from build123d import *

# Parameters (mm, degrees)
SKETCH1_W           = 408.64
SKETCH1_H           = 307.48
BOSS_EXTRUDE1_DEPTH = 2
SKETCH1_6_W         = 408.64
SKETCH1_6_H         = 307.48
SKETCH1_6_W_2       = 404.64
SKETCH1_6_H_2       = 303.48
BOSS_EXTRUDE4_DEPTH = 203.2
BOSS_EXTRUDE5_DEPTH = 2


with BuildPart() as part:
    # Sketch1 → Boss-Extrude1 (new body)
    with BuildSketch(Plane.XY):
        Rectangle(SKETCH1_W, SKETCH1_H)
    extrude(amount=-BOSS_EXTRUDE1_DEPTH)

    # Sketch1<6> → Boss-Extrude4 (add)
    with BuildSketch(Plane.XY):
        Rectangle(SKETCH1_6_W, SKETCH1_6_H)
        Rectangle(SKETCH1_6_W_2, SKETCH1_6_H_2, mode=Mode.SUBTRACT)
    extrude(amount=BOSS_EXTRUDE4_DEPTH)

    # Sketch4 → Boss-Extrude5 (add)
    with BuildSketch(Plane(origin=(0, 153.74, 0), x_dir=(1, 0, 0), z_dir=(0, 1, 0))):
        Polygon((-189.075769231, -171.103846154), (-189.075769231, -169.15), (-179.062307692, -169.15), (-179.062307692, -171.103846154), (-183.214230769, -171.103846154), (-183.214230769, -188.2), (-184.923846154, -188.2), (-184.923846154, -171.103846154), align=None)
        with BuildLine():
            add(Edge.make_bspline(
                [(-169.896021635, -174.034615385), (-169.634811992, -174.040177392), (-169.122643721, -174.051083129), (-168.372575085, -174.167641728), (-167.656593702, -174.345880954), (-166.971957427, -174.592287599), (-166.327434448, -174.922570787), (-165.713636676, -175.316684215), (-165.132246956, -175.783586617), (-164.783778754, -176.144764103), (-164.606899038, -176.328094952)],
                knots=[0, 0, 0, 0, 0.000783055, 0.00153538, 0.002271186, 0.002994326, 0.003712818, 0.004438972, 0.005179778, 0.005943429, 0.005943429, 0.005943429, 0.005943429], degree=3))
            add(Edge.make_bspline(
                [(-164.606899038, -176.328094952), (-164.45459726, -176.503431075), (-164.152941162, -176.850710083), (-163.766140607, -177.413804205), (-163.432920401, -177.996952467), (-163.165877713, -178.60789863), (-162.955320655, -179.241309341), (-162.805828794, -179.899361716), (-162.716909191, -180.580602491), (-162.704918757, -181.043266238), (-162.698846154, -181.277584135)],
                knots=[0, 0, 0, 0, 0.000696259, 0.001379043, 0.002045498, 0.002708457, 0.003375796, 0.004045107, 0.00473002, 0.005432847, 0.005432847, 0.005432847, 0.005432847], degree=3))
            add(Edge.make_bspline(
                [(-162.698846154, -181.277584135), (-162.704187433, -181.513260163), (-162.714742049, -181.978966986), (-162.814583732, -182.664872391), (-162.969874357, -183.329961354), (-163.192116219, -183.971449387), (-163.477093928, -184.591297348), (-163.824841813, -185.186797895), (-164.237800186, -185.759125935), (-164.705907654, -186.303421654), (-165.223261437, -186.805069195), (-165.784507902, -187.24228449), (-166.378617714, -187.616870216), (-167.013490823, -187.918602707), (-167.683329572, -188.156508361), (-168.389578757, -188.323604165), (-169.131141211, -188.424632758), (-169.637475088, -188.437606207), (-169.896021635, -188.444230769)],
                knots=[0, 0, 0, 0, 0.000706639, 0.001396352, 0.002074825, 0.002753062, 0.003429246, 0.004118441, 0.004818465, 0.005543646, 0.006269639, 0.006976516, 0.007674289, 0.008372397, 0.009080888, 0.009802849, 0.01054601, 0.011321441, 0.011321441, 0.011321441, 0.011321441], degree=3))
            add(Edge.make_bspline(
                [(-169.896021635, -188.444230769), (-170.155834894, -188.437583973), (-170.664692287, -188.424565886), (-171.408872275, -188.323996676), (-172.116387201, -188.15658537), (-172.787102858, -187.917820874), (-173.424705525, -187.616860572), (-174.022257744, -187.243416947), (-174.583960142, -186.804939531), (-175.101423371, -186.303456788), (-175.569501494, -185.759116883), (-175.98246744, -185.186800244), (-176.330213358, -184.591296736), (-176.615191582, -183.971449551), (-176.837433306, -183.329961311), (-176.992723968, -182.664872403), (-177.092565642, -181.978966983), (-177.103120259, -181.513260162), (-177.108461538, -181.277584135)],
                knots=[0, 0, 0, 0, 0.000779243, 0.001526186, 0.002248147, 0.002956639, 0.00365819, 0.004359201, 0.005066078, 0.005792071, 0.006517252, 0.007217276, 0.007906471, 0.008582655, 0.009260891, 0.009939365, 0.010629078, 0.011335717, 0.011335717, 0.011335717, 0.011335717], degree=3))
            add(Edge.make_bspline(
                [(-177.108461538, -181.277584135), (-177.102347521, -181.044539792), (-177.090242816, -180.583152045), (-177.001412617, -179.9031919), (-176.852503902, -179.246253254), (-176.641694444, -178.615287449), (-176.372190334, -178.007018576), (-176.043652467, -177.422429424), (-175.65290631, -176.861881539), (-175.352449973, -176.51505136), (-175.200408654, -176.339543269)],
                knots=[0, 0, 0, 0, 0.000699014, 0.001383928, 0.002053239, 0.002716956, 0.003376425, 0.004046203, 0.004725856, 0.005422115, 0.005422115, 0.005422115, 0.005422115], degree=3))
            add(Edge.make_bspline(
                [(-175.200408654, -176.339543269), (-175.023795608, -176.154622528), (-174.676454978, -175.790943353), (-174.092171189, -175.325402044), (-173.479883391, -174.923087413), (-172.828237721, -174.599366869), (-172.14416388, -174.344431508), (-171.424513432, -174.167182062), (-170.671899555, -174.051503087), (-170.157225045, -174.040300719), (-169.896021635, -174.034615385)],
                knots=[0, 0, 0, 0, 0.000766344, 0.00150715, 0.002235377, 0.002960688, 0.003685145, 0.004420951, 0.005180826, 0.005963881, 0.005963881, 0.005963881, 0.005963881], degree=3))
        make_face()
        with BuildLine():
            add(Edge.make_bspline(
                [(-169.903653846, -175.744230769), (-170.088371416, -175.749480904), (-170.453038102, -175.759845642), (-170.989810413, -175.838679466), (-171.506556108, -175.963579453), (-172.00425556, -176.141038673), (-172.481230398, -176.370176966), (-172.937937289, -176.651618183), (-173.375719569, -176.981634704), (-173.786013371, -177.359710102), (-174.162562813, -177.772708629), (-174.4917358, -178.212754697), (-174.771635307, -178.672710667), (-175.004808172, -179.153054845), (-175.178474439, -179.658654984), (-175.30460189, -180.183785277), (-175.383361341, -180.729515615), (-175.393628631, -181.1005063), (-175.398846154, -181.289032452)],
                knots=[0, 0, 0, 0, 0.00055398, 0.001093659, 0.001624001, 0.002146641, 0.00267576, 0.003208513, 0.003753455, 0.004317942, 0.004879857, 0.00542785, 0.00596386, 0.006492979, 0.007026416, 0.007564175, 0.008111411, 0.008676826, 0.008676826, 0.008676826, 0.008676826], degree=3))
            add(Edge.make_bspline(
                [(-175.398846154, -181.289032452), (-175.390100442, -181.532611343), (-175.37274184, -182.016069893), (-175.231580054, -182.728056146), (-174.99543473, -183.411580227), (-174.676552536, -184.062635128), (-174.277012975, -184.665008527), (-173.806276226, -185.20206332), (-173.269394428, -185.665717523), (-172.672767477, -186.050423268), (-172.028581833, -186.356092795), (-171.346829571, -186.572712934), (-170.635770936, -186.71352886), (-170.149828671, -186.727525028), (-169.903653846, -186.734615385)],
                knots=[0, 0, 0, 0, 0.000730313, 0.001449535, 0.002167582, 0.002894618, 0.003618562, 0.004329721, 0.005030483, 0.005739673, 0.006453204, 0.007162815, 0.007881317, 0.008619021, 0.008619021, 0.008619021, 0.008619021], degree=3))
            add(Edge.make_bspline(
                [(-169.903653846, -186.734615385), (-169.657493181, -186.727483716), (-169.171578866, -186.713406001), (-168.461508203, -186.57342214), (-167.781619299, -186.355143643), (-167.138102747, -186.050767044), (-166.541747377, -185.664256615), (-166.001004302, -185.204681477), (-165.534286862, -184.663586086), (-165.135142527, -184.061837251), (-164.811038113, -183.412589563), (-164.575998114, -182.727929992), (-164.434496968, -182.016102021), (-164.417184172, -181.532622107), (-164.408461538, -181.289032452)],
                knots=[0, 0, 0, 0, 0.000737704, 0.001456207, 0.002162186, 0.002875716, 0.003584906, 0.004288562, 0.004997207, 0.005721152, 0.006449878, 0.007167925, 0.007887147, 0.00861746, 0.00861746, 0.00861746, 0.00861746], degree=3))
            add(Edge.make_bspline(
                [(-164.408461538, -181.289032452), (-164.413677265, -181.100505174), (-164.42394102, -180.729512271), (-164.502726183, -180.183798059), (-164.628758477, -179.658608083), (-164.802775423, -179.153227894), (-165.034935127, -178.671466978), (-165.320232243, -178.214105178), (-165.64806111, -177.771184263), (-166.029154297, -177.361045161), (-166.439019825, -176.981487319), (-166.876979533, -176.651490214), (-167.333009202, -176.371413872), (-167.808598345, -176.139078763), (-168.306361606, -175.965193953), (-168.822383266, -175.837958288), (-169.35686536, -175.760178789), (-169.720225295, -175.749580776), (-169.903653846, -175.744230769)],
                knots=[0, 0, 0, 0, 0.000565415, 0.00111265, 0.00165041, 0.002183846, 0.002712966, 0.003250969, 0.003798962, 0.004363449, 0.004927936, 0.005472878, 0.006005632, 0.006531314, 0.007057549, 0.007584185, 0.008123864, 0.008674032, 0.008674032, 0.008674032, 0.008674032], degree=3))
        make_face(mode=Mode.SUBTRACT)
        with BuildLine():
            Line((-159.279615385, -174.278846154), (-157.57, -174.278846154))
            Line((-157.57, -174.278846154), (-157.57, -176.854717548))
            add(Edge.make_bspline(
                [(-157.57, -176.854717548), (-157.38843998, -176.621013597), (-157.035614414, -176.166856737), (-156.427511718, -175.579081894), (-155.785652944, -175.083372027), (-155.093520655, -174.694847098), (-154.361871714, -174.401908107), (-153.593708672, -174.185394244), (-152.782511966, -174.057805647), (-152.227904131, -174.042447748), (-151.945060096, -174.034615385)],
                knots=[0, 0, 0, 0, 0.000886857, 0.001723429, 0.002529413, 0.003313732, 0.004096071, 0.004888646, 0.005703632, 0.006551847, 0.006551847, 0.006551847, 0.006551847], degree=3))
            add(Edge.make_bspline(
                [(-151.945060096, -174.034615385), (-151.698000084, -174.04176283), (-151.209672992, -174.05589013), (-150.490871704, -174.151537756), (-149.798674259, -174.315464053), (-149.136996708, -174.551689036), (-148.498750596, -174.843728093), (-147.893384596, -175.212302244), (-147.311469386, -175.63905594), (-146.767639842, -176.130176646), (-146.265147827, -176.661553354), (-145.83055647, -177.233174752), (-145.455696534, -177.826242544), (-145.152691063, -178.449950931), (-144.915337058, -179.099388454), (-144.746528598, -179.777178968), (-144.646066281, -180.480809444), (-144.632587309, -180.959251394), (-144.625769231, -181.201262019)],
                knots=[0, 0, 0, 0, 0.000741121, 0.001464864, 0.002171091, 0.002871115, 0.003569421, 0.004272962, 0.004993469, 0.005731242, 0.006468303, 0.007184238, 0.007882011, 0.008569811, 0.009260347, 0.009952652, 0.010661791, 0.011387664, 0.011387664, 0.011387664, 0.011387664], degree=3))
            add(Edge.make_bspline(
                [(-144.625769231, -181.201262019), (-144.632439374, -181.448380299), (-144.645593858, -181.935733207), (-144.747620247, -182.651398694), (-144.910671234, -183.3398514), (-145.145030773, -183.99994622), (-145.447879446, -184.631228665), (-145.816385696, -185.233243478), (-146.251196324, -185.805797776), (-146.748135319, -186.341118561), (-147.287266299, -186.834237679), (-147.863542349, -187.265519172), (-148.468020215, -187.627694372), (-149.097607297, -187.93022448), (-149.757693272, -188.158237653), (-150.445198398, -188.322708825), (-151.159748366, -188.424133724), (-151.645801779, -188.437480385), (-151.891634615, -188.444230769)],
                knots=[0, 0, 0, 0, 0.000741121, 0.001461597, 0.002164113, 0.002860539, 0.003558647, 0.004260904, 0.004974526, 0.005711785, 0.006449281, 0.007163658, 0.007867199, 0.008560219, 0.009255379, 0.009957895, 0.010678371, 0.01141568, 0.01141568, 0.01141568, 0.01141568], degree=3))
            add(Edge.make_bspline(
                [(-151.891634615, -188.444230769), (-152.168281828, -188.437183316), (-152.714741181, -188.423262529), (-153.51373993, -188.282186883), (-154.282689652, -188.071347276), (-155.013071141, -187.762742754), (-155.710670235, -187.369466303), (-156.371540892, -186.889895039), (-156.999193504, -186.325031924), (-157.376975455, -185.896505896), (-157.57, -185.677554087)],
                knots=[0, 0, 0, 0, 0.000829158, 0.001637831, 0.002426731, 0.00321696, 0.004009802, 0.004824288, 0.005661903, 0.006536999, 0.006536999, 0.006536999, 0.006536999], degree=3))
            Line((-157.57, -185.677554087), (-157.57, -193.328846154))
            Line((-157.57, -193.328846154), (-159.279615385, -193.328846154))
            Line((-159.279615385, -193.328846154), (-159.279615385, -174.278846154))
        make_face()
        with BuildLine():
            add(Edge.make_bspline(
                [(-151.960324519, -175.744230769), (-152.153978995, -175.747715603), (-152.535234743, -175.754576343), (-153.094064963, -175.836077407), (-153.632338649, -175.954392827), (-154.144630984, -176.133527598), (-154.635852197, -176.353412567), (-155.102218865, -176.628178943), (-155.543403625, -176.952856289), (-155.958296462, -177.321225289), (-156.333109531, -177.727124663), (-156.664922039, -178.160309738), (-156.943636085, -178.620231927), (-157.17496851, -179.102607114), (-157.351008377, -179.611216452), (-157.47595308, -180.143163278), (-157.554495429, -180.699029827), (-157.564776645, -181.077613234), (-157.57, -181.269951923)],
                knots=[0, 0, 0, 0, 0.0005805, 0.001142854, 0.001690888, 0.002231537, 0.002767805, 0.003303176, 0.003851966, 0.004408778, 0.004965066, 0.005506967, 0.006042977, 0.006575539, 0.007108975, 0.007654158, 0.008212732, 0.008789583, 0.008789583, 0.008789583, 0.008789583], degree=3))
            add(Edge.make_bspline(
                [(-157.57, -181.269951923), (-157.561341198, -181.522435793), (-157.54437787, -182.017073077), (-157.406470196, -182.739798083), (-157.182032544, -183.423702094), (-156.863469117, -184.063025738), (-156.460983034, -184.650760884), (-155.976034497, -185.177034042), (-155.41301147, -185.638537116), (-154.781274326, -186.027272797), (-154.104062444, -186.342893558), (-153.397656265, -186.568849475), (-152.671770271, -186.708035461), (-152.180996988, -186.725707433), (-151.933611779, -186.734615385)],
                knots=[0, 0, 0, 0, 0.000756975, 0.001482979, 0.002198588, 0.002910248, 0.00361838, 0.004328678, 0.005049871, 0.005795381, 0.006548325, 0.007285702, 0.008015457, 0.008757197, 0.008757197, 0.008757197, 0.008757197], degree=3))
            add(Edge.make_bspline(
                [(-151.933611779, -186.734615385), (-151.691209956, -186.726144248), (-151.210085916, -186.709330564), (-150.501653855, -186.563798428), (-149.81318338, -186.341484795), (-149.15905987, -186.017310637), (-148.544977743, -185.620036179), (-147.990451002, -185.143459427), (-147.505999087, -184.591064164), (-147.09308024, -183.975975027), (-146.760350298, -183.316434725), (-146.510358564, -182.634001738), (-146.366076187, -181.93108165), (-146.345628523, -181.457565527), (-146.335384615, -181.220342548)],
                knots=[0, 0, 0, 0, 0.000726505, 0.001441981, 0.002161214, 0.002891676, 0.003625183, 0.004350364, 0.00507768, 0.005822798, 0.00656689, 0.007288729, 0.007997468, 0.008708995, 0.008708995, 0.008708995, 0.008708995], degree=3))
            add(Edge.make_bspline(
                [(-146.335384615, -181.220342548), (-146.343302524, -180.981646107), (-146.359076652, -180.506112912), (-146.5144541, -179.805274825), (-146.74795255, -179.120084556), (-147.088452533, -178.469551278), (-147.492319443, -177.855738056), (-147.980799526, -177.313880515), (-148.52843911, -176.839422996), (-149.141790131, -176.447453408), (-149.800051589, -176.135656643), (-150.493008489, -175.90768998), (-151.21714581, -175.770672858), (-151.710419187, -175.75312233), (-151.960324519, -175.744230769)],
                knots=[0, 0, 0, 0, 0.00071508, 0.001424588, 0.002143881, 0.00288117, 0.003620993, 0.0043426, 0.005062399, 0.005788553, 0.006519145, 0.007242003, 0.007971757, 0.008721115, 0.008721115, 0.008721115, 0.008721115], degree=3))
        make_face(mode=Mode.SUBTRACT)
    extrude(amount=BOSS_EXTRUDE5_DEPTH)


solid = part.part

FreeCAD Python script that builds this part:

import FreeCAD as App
import Part
import Sketcher
from FreeCAD import Vector
Q = App.Units.Quantity


def add_polygon(sketch, points):
    """Adds a closed chain of lines whose ends are joined by coincident constraints."""
    first, n = sketch.GeometryCount, len(points)
    for a, b in zip(points, points[1:] + points[:1]):
        sketch.addGeometry(Part.LineSegment(App.Vector(*a, 0), App.Vector(*b, 0)), False)
    for i in range(n):
        sketch.addConstraint(Sketcher.Constraint("Coincident", first + i, 2, first + (i + 1) % n, 1))

doc = App.newDocument("Part")
body = doc.addObject("PartDesign::Body", "Body")

sketch1 = body.newObject("Sketcher::SketchObject", "Sketch")
sketch1.AttachmentSupport = (doc.getObject("XY_Plane"), [""])
sketch1.MapMode = "FlatFace"
add_polygon(sketch1, [(-204.32, 153.74), (-204.32, -153.74), (204.32, -153.74), (204.32, 153.74)])
sketch1.addConstraint([
    Sketcher.Constraint("Vertical", 0),
    Sketcher.Constraint("Horizontal", 1),
    Sketcher.Constraint("Vertical", 2),
    Sketcher.Constraint("Horizontal", 3),
    Sketcher.Constraint("Symmetric", 0, 2, 2, 2, -1, 1),
    Sketcher.Constraint("DistanceX", 1, 1, 1, 2, Q("408.64 mm")),
    Sketcher.Constraint("DistanceY", 0, 2, 0, 1, Q("307.48 mm")),
])
pad1 = body.newObject("PartDesign::Pad", "Pad")
pad1.Profile = sketch1
pad1.Length = 2
pad1.Reversed = True

sketch2 = body.newObject("Sketcher::SketchObject", "Sketch001")
sketch2.AttachmentSupport = (doc.getObject("XY_Plane"), [""])
sketch2.MapMode = "FlatFace"
add_polygon(sketch2, [(-204.32, 153.74), (-204.32, -153.74), (204.32, -153.74), (204.32, 153.74)])
add_polygon(sketch2, [(202.32, -151.74), (-202.32, -151.74), (-202.32, 151.74), (202.32, 151.74)])
sketch2.addConstraint([
    Sketcher.Constraint("Vertical", 0),
    Sketcher.Constraint("Horizontal", 1),
    Sketcher.Constraint("Vertical", 2),
    Sketcher.Constraint("Horizontal", 3),
    Sketcher.Constraint("Horizontal", 4),
    Sketcher.Constraint("Vertical", 5),
    Sketcher.Constraint("Horizontal", 6),
    Sketcher.Constraint("Vertical", 7),
    Sketcher.Constraint("Symmetric", 0, 2, 2, 2, -1, 1),
    Sketcher.Constraint("Symmetric", 4, 2, 6, 2, -1, 1),
    Sketcher.Constraint("DistanceX", 1, 1, 1, 2, Q("408.64 mm")),
    Sketcher.Constraint("DistanceX", 4, 2, 4, 1, Q("404.64 mm")),
    Sketcher.Constraint("DistanceY", 0, 2, 0, 1, Q("307.48 mm")),
    Sketcher.Constraint("DistanceY", 5, 1, 5, 2, Q("303.48 mm")),
])
pad2 = body.newObject("PartDesign::Pad", "Pad001")
pad2.Profile = sketch2
pad2.Length = Q("8 in")

sketch3 = body.newObject("Sketcher::SketchObject", "Sketch002")
sketch3.AttachmentSupport = (doc.getObject("XZ_Plane"), [""])
sketch3.MapMode = "FlatFace"
sketch3.AttachmentOffset = App.Placement(Vector(0, 0, -153.74), App.Rotation())
add_polygon(sketch3, [(-189.075769, 169.15), (-189.075769, 171.103846), (-184.923846, 171.103846), (-184.923846, 188.2), (-183.214231, 188.2), (-183.214231, 171.103846), (-179.062308, 171.103846), (-179.062308, 169.15)])
sketch3.addGeometry(Part.BSplineCurve([Vector(-169.896022, 174.034615, 0), Vector(-169.634812, 174.040177, 0), Vector(-169.122644, 174.051083, 0), Vector(-168.372575, 174.167642, 0), Vector(-167.656594, 174.345881, 0), Vector(-166.971957, 174.592288, 0), Vector(-166.327434, 174.922571, 0), Vector(-165.713637, 175.316684, 0), Vector(-165.132247, 175.783587, 0), Vector(-164.783779, 176.144764, 0), Vector(-164.606899, 176.328095, 0)], [4, 1, 1, 1, 1, 1, 1, 1, 4], [0, 0.000783055, 0.00153538, 0.002271186, 0.002994326, 0.003712818, 0.004438972, 0.005179778, 0.005943429], False, 3, [1, 1, 1, 1, 1, 1, 1, 1, 1, 1, 1], False), False)
sketch3.addGeometry(Part.BSplineCurve([Vector(-175.200409, 176.339543, 0), Vector(-175.023796, 176.154623, 0), Vector(-174.676455, 175.790943, 0), Vector(-174.092171, 175.325402, 0), Vector(-173.479883, 174.923087, 0), Vector(-172.828238, 174.599367, 0), Vector(-172.144164, 174.344432, 0), Vector(-171.424513, 174.167182, 0), Vector(-170.6719, 174.051503, 0), Vector(-170.157225, 174.040301, 0), Vector(-169.896022, 174.034615, 0)], [4, 1, 1, 1, 1, 1, 1, 1, 4], [0, 0.000766344, 0.00150715, 0.002235377, 0.002960688, 0.003685145, 0.004420951, 0.005180826, 0.005963881], False, 3, [1, 1, 1, 1, 1, 1, 1, 1, 1, 1, 1], False), False)
sketch3.addGeometry(Part.BSplineCurve([Vector(-177.108462, 181.277584, 0), Vector(-177.102348, 181.04454, 0), Vector(-177.090243, 180.583152, 0), Vector(-177.001413, 179.903192, 0), Vector(-176.852504, 179.246253, 0), Vector(-176.641694, 178.615287, 0), Vector(-176.37219, 178.007019, 0), Vector(-176.043652, 177.422429, 0), Vector(-175.652906, 176.861882, 0), Vector(-175.35245, 176.515051, 0), Vector(-175.200409, 176.339543, 0)], [4, 1, 1, 1, 1, 1, 1, 1, 4], [0, 0.000699014, 0.001383928, 0.002053239, 0.002716956, 0.003376425, 0.004046203, 0.004725856, 0.005422115], False, 3, [1, 1, 1, 1, 1, 1, 1, 1, 1, 1, 1], False), False)
sketch3.addGeometry(Part.BSplineCurve([Vector(-169.896022, 188.444231, 0), Vector(-170.155835, 188.437584, 0), Vector(-170.664692, 188.424566, 0), Vector(-171.408872, 188.323997, 0), Vector(-172.116387, 188.156585, 0), Vector(-172.787103, 187.917821, 0), Vector(-173.424706, 187.616861, 0), Vector(-174.022258, 187.243417, 0), Vector(-174.58396, 186.80494, 0), Vector(-175.101423, 186.303457, 0), Vector(-175.569501, 185.759117, 0), Vector(-175.982467, 185.1868, 0), Vector(-176.330213, 184.591297, 0), Vector(-176.615192, 183.97145, 0), Vector(-176.837433, 183.329961, 0), Vector(-176.992724, 182.664872, 0), Vector(-177.092566, 181.978967, 0), Vector(-177.10312, 181.51326, 0), Vector(-177.108462, 181.277584, 0)], [4, 1, 1, 1, 1, 1, 1, 1, 1, 1, 1, 1, 1, 1, 1, 1, 4], [0, 0.000779243, 0.001526186, 0.002248147, 0.002956639, 0.00365819, 0.004359201, 0.005066078, 0.005792071, 0.006517252, 0.007217276, 0.007906471, 0.008582655, 0.009260891, 0.009939365, 0.010629078, 0.011335717], False, 3, [1, 1, 1, 1, 1, 1, 1, 1, 1, 1, 1, 1, 1, 1, 1, 1, 1, 1, 1], False), False)
sketch3.addGeometry(Part.BSplineCurve([Vector(-162.698846, 181.277584, 0), Vector(-162.704187, 181.51326, 0), Vector(-162.714742, 181.978967, 0), Vector(-162.814584, 182.664872, 0), Vector(-162.969874, 183.329961, 0), Vector(-163.192116, 183.971449, 0), Vector(-163.477094, 184.591297, 0), Vector(-163.824842, 185.186798, 0), Vector(-164.2378, 185.759126, 0), Vector(-164.705908, 186.303422, 0), Vector(-165.223261, 186.805069, 0), Vector(-165.784508, 187.242284, 0), Vector(-166.378618, 187.61687, 0), Vector(-167.013491, 187.918603, 0), Vector(-167.68333, 188.156508, 0), Vector(-168.389579, 188.323604, 0), Vector(-169.131141, 188.424633, 0), Vector(-169.637475, 188.437606, 0), Vector(-169.896022, 188.444231, 0)], [4, 1, 1, 1, 1, 1, 1, 1, 1, 1, 1, 1, 1, 1, 1, 1, 4], [0, 0.000706639, 0.001396352, 0.002074825, 0.002753062, 0.003429246, 0.004118441, 0.004818465, 0.005543646, 0.006269639, 0.006976516, 0.007674289, 0.008372397, 0.009080888, 0.009802849, 0.01054601, 0.011321441], False, 3, [1, 1, 1, 1, 1, 1, 1, 1, 1, 1, 1, 1, 1, 1, 1, 1, 1, 1, 1], False), False)
sketch3.addGeometry(Part.BSplineCurve([Vector(-164.606899, 176.328095, 0), Vector(-164.454597, 176.503431, 0), Vector(-164.152941, 176.85071, 0), Vector(-163.766141, 177.413804, 0), Vector(-163.43292, 177.996952, 0), Vector(-163.165878, 178.607899, 0), Vector(-162.955321, 179.241309, 0), Vector(-162.805829, 179.899362, 0), Vector(-162.716909, 180.580602, 0), Vector(-162.704919, 181.043266, 0), Vector(-162.698846, 181.277584, 0)], [4, 1, 1, 1, 1, 1, 1, 1, 4], [0, 0.000696259, 0.001379043, 0.002045498, 0.002708457, 0.003375796, 0.004045107, 0.00473002, 0.005432847], False, 3, [1, 1, 1, 1, 1, 1, 1, 1, 1, 1, 1], False), False)
sketch3.addGeometry(Part.BSplineCurve([Vector(-164.408462, 181.289032, 0), Vector(-164.413677, 181.100505, 0), Vector(-164.423941, 180.729512, 0), Vector(-164.502726, 180.183798, 0), Vector(-164.628758, 179.658608, 0), Vector(-164.802775, 179.153228, 0), Vector(-165.034935, 178.671467, 0), Vector(-165.320232, 178.214105, 0), Vector(-165.648061, 177.771184, 0), Vector(-166.029154, 177.361045, 0), Vector(-166.43902, 176.981487, 0), Vector(-166.87698, 176.65149, 0), Vector(-167.333009, 176.371414, 0), Vector(-167.808598, 176.139079, 0), Vector(-168.306362, 175.965194, 0), Vector(-168.822383, 175.837958, 0), Vector(-169.356865, 175.760179, 0), Vector(-169.720225, 175.749581, 0), Vector(-169.903654, 175.744231, 0)], [4, 1, 1, 1, 1, 1, 1, 1, 1, 1, 1, 1, 1, 1, 1, 1, 4], [0, 0.000565415, 0.00111265, 0.00165041, 0.002183846, 0.002712966, 0.003250969, 0.003798962, 0.004363449, 0.004927936, 0.005472878, 0.006005632, 0.006531314, 0.007057549, 0.007584185, 0.008123864, 0.008674032], False, 3, [1, 1, 1, 1, 1, 1, 1, 1, 1, 1, 1, 1, 1, 1, 1, 1, 1, 1, 1], False), False)
sketch3.addGeometry(Part.BSplineCurve([Vector(-169.903654, 186.734615, 0), Vector(-169.657493, 186.727484, 0), Vector(-169.171579, 186.713406, 0), Vector(-168.461508, 186.573422, 0), Vector(-167.781619, 186.355144, 0), Vector(-167.138103, 186.050767, 0), Vector(-166.541747, 185.664257, 0), Vector(-166.001004, 185.204681, 0), Vector(-165.534287, 184.663586, 0), Vector(-165.135143, 184.061837, 0), Vector(-164.811038, 183.41259, 0), Vector(-164.575998, 182.72793, 0), Vector(-164.434497, 182.016102, 0), Vector(-164.417184, 181.532622, 0), Vector(-164.408462, 181.289032, 0)], [4, 1, 1, 1, 1, 1, 1, 1, 1, 1, 1, 1, 4], [0, 0.000737704, 0.001456207, 0.002162186, 0.002875716, 0.003584906, 0.004288562, 0.004997207, 0.005721152, 0.006449878, 0.007167925, 0.007887147, 0.00861746], False, 3, [1, 1, 1, 1, 1, 1, 1, 1, 1, 1, 1, 1, 1, 1, 1], False), False)
sketch3.addGeometry(Part.BSplineCurve([Vector(-175.398846, 181.289032, 0), Vector(-175.3901, 181.532611, 0), Vector(-175.372742, 182.01607, 0), Vector(-175.23158, 182.728056, 0), Vector(-174.995435, 183.41158, 0), Vector(-174.676553, 184.062635, 0), Vector(-174.277013, 184.665009, 0), Vector(-173.806276, 185.202063, 0), Vector(-173.269394, 185.665718, 0), Vector(-172.672767, 186.050423, 0), Vector(-172.028582, 186.356093, 0), Vector(-171.34683, 186.572713, 0), Vector(-170.635771, 186.713529, 0), Vector(-170.149829, 186.727525, 0), Vector(-169.903654, 186.734615, 0)], [4, 1, 1, 1, 1, 1, 1, 1, 1, 1, 1, 1, 4], [0, 0.000730313, 0.001449535, 0.002167582, 0.002894618, 0.003618562, 0.004329721, 0.005030483, 0.005739673, 0.006453204, 0.007162815, 0.007881317, 0.008619021], False, 3, [1, 1, 1, 1, 1, 1, 1, 1, 1, 1, 1, 1, 1, 1, 1], False), False)
sketch3.addGeometry(Part.BSplineCurve([Vector(-169.903654, 175.744231, 0), Vector(-170.088371, 175.749481, 0), Vector(-170.453038, 175.759846, 0), Vector(-170.98981, 175.838679, 0), Vector(-171.506556, 175.963579, 0), Vector(-172.004256, 176.141039, 0), Vector(-172.48123, 176.370177, 0), Vector(-172.937937, 176.651618, 0), Vector(-173.37572, 176.981635, 0), Vector(-173.786013, 177.35971, 0), Vector(-174.162563, 177.772709, 0), Vector(-174.491736, 178.212755, 0), Vector(-174.771635, 178.672711, 0), Vector(-175.004808, 179.153055, 0), Vector(-175.178474, 179.658655, 0), Vector(-175.304602, 180.183785, 0), Vector(-175.383361, 180.729516, 0), Vector(-175.393629, 181.100506, 0), Vector(-175.398846, 181.289032, 0)], [4, 1, 1, 1, 1, 1, 1, 1, 1, 1, 1, 1, 1, 1, 1, 1, 4], [0, 0.00055398, 0.001093659, 0.001624001, 0.002146641, 0.00267576, 0.003208513, 0.003753455, 0.004317942, 0.004879857, 0.00542785, 0.00596386, 0.006492979, 0.007026416, 0.007564175, 0.008111411, 0.008676826], False, 3, [1, 1, 1, 1, 1, 1, 1, 1, 1, 1, 1, 1, 1, 1, 1, 1, 1, 1, 1], False), False)
sketch3.addGeometry(Part.LineSegment(Vector(-157.57, 174.278846, 0), Vector(-159.279615, 174.278846, 0)), False)
sketch3.addGeometry(Part.LineSegment(Vector(-159.279615, 174.278846, 0), Vector(-159.279615, 193.328846, 0)), False)
sketch3.addGeometry(Part.LineSegment(Vector(-159.279615, 193.328846, 0), Vector(-157.57, 193.328846, 0)), False)
sketch3.addGeometry(Part.LineSegment(Vector(-157.57, 193.328846, 0), Vector(-157.57, 185.677554, 0)), False)
sketch3.addGeometry(Part.BSplineCurve([Vector(-151.891635, 188.444231, 0), Vector(-152.168282, 188.437183, 0), Vector(-152.714741, 188.423263, 0), Vector(-153.51374, 188.282187, 0), Vector(-154.28269, 188.071347, 0), Vector(-155.013071, 187.762743, 0), Vector(-155.71067, 187.369466, 0), Vector(-156.371541, 186.889895, 0), Vector(-156.999194, 186.325032, 0), Vector(-157.376975, 185.896506, 0), Vector(-157.57, 185.677554, 0)], [4, 1, 1, 1, 1, 1, 1, 1, 4], [0, 0.000829158, 0.001637831, 0.002426731, 0.00321696, 0.004009802, 0.004824288, 0.005661903, 0.006536999], False, 3, [1, 1, 1, 1, 1, 1, 1, 1, 1, 1, 1], False), False)
sketch3.addGeometry(Part.BSplineCurve([Vector(-144.625769, 181.201262, 0), Vector(-144.632439, 181.44838, 0), Vector(-144.645594, 181.935733, 0), Vector(-144.74762, 182.651399, 0), Vector(-144.910671, 183.339851, 0), Vector(-145.145031, 183.999946, 0), Vector(-145.447879, 184.631229, 0), Vector(-145.816386, 185.233243, 0), Vector(-146.251196, 185.805798, 0), Vector(-146.748135, 186.341119, 0), Vector(-147.287266, 186.834238, 0), Vector(-147.863542, 187.265519, 0), Vector(-148.46802, 187.627694, 0), Vector(-149.097607, 187.930224, 0), Vector(-149.757693, 188.158238, 0), Vector(-150.445198, 188.322709, 0), Vector(-151.159748, 188.424134, 0), Vector(-151.645802, 188.43748, 0), Vector(-151.891635, 188.444231, 0)], [4, 1, 1, 1, 1, 1, 1, 1, 1, 1, 1, 1, 1, 1, 1, 1, 4], [0, 0.000741121, 0.001461597, 0.002164113, 0.002860539, 0.003558647, 0.004260904, 0.004974526, 0.005711785, 0.006449281, 0.007163658, 0.007867199, 0.008560219, 0.009255379, 0.009957895, 0.010678371, 0.01141568], False, 3, [1, 1, 1, 1, 1, 1, 1, 1, 1, 1, 1, 1, 1, 1, 1, 1, 1, 1, 1], False), False)
sketch3.addGeometry(Part.BSplineCurve([Vector(-151.94506, 174.034615, 0), Vector(-151.698, 174.041763, 0), Vector(-151.209673, 174.05589, 0), Vector(-150.490872, 174.151538, 0), Vector(-149.798674, 174.315464, 0), Vector(-149.136997, 174.551689, 0), Vector(-148.498751, 174.843728, 0), Vector(-147.893385, 175.212302, 0), Vector(-147.311469, 175.639056, 0), Vector(-146.76764, 176.130177, 0), Vector(-146.265148, 176.661553, 0), Vector(-145.830556, 177.233175, 0), Vector(-145.455697, 177.826243, 0), Vector(-145.152691, 178.449951, 0), Vector(-144.915337, 179.099388, 0), Vector(-144.746529, 179.777179, 0), Vector(-144.646066, 180.480809, 0), Vector(-144.632587, 180.959251, 0), Vector(-144.625769, 181.201262, 0)], [4, 1, 1, 1, 1, 1, 1, 1, 1, 1, 1, 1, 1, 1, 1, 1, 4], [0, 0.000741121, 0.001464864, 0.002171091, 0.002871115, 0.003569421, 0.004272962, 0.004993469, 0.005731242, 0.006468303, 0.007184238, 0.007882011, 0.008569811, 0.009260347, 0.009952652, 0.010661791, 0.011387664], False, 3, [1, 1, 1, 1, 1, 1, 1, 1, 1, 1, 1, 1, 1, 1, 1, 1, 1, 1, 1], False), False)
sketch3.addGeometry(Part.BSplineCurve([Vector(-157.57, 176.854718, 0), Vector(-157.38844, 176.621014, 0), Vector(-157.035614, 176.166857, 0), Vector(-156.427512, 175.579082, 0), Vector(-155.785653, 175.083372, 0), Vector(-155.093521, 174.694847, 0), Vector(-154.361872, 174.401908, 0), Vector(-153.593709, 174.185394, 0), Vector(-152.782512, 174.057806, 0), Vector(-152.227904, 174.042448, 0), Vector(-151.94506, 174.034615, 0)], [4, 1, 1, 1, 1, 1, 1, 1, 4], [0, 0.000886857, 0.001723429, 0.002529413, 0.003313732, 0.004096071, 0.004888646, 0.005703632, 0.006551847], False, 3, [1, 1, 1, 1, 1, 1, 1, 1, 1, 1, 1], False), False)
sketch3.addGeometry(Part.LineSegment(Vector(-157.57, 176.854718, 0), Vector(-157.57, 174.278846, 0)), False)
sketch3.addGeometry(Part.BSplineCurve([Vector(-146.335385, 181.220343, 0), Vector(-146.343303, 180.981646, 0), Vector(-146.359077, 180.506113, 0), Vector(-146.514454, 179.805275, 0), Vector(-146.747953, 179.120085, 0), Vector(-147.088453, 178.469551, 0), Vector(-147.492319, 177.855738, 0), Vector(-147.9808, 177.313881, 0), Vector(-148.528439, 176.839423, 0), Vector(-149.14179, 176.447453, 0), Vector(-149.800052, 176.135657, 0), Vector(-150.493008, 175.90769, 0), Vector(-151.217146, 175.770673, 0), Vector(-151.710419, 175.753122, 0), Vector(-151.960325, 175.744231, 0)], [4, 1, 1, 1, 1, 1, 1, 1, 1, 1, 1, 1, 4], [0, 0.00071508, 0.001424588, 0.002143881, 0.00288117, 0.003620993, 0.0043426, 0.005062399, 0.005788553, 0.006519145, 0.007242003, 0.007971757, 0.008721115], False, 3, [1, 1, 1, 1, 1, 1, 1, 1, 1, 1, 1, 1, 1, 1, 1], False), False)
sketch3.addGeometry(Part.BSplineCurve([Vector(-151.933612, 186.734615, 0), Vector(-151.69121, 186.726144, 0), Vector(-151.210086, 186.709331, 0), Vector(-150.501654, 186.563798, 0), Vector(-149.813183, 186.341485, 0), Vector(-149.15906, 186.017311, 0), Vector(-148.544978, 185.620036, 0), Vector(-147.990451, 185.143459, 0), Vector(-147.505999, 184.591064, 0), Vector(-147.09308, 183.975975, 0), Vector(-146.76035, 183.316435, 0), Vector(-146.510359, 182.634002, 0), Vector(-146.366076, 181.931082, 0), Vector(-146.345629, 181.457566, 0), Vector(-146.335385, 181.220343, 0)], [4, 1, 1, 1, 1, 1, 1, 1, 1, 1, 1, 1, 4], [0, 0.000726505, 0.001441981, 0.002161214, 0.002891676, 0.003625183, 0.004350364, 0.00507768, 0.005822798, 0.00656689, 0.007288729, 0.007997468, 0.008708995], False, 3, [1, 1, 1, 1, 1, 1, 1, 1, 1, 1, 1, 1, 1, 1, 1], False), False)
sketch3.addGeometry(Part.BSplineCurve([Vector(-157.57, 181.269952, 0), Vector(-157.561341, 181.522436, 0), Vector(-157.544378, 182.017073, 0), Vector(-157.40647, 182.739798, 0), Vector(-157.182033, 183.423702, 0), Vector(-156.863469, 184.063026, 0), Vector(-156.460983, 184.650761, 0), Vector(-155.976034, 185.177034, 0), Vector(-155.413011, 185.638537, 0), Vector(-154.781274, 186.027273, 0), Vector(-154.104062, 186.342894, 0), Vector(-153.397656, 186.568849, 0), Vector(-152.67177, 186.708035, 0), Vector(-152.180997, 186.725707, 0), Vector(-151.933612, 186.734615, 0)], [4, 1, 1, 1, 1, 1, 1, 1, 1, 1, 1, 1, 4], [0, 0.000756975, 0.001482979, 0.002198588, 0.002910248, 0.00361838, 0.004328678, 0.005049871, 0.005795381, 0.006548325, 0.007285702, 0.008015457, 0.008757197], False, 3, [1, 1, 1, 1, 1, 1, 1, 1, 1, 1, 1, 1, 1, 1, 1], False), False)
sketch3.addGeometry(Part.BSplineCurve([Vector(-151.960325, 175.744231, 0), Vector(-152.153979, 175.747716, 0), Vector(-152.535235, 175.754576, 0), Vector(-153.094065, 175.836077, 0), Vector(-153.632339, 175.954393, 0), Vector(-154.144631, 176.133528, 0), Vector(-154.635852, 176.353413, 0), Vector(-155.102219, 176.628179, 0), Vector(-155.543404, 176.952856, 0), Vector(-155.958296, 177.321225, 0), Vector(-156.33311, 177.727125, 0), Vector(-156.664922, 178.16031, 0), Vector(-156.943636, 178.620232, 0), Vector(-157.174969, 179.102607, 0), Vector(-157.351008, 179.611216, 0), Vector(-157.475953, 180.143163, 0), Vector(-157.554495, 180.69903, 0), Vector(-157.564777, 181.077613, 0), Vector(-157.57, 181.269952, 0)], [4, 1, 1, 1, 1, 1, 1, 1, 1, 1, 1, 1, 1, 1, 1, 1, 4], [0, 0.0005805, 0.001142854, 0.001690888, 0.002231537, 0.002767805, 0.003303176, 0.003851966, 0.004408778, 0.004965066, 0.005506967, 0.006042977, 0.006575539, 0.007108975, 0.007654158, 0.008212732, 0.008789583], False, 3, [1, 1, 1, 1, 1, 1, 1, 1, 1, 1, 1, 1, 1, 1, 1, 1, 1, 1, 1], False), False)
sketch3.addConstraint([
    Sketcher.Constraint("Block", 8),
    Sketcher.Constraint("Block", 9),
    Sketcher.Constraint("Block", 10),
    Sketcher.Constraint("Block", 11),
    Sketcher.Constraint("Block", 12),
    Sketcher.Constraint("Block", 13),
    Sketcher.Constraint("Block", 14),
    Sketcher.Constraint("Block", 15),
    Sketcher.Constraint("Block", 16),
    Sketcher.Constraint("Block", 17),
    Sketcher.Constraint("Block", 22),
    Sketcher.Constraint("Block", 23),
    Sketcher.Constraint("Block", 24),
    Sketcher.Constraint("Block", 25),
    Sketcher.Constraint("Block", 27),
    Sketcher.Constraint("Block", 28),
    Sketcher.Constraint("Block", 29),
    Sketcher.Constraint("Block", 30),
    Sketcher.Constraint("Coincident", 18, 2, 19, 1),
    Sketcher.Constraint("Coincident", 19, 2, 20, 1),
    Sketcher.Constraint("Coincident", 20, 2, 21, 1),
    Sketcher.Constraint("Coincident", 21, 2, 22, 2),
    Sketcher.Constraint("Coincident", 25, 1, 26, 1),
    Sketcher.Constraint("Coincident", 26, 2, 18, 1),
    Sketcher.Constraint("Vertical", 0),
    Sketcher.Constraint("Horizontal", 1),
    Sketcher.Constraint("Vertical", 2),
    Sketcher.Constraint("Horizontal", 3),
    Sketcher.Constraint("Vertical", 4),
    Sketcher.Constraint("Horizontal", 5),
    Sketcher.Constraint("Vertical", 6),
    Sketcher.Constraint("Horizontal", 7),
    Sketcher.Constraint("Horizontal", 18),
    Sketcher.Constraint("Vertical", 19),
    Sketcher.Constraint("Horizontal", 20),
    Sketcher.Constraint("Vertical", 21),
    Sketcher.Constraint("Vertical", 26),
    Sketcher.Constraint("Horizontal", 1, 2, 4, 2),
    Sketcher.Constraint("Equal", 1, 5),
    Sketcher.Constraint("Equal", 3, 18),
    Sketcher.Constraint("DistanceY", 19, 1, 19, 2, Q("0.75 in")),
    Sketcher.Constraint("DistanceY", 6, 2, 3, 2, Q("0.75 in")),
    Sketcher.Constraint("DistanceY", 5, 2, 18, 2, Q("0.125 in")),
    Sketcher.Constraint("DistanceX", 7, 2, 7, 1, Q("10.013462 mm")),
    Sketcher.Constraint("DistanceY", 26, 2, 26, 1, Q("2.575871 mm")),
    Sketcher.Constraint("DistanceY", -1, 1, 2, 2, Q("188.2 mm")),
    Sketcher.Constraint("DistanceX", 1, 1, 1, 2, Q("4.151923 mm")),
    Sketcher.Constraint("DistanceX", 0, 2, -1, 1, Q("189.075769 mm")),
])
pad3 = body.newObject("PartDesign::Pad", "Pad002")
pad3.Profile = sketch3
pad3.Length = 2
pad3.Reversed = True

doc.recompute()
